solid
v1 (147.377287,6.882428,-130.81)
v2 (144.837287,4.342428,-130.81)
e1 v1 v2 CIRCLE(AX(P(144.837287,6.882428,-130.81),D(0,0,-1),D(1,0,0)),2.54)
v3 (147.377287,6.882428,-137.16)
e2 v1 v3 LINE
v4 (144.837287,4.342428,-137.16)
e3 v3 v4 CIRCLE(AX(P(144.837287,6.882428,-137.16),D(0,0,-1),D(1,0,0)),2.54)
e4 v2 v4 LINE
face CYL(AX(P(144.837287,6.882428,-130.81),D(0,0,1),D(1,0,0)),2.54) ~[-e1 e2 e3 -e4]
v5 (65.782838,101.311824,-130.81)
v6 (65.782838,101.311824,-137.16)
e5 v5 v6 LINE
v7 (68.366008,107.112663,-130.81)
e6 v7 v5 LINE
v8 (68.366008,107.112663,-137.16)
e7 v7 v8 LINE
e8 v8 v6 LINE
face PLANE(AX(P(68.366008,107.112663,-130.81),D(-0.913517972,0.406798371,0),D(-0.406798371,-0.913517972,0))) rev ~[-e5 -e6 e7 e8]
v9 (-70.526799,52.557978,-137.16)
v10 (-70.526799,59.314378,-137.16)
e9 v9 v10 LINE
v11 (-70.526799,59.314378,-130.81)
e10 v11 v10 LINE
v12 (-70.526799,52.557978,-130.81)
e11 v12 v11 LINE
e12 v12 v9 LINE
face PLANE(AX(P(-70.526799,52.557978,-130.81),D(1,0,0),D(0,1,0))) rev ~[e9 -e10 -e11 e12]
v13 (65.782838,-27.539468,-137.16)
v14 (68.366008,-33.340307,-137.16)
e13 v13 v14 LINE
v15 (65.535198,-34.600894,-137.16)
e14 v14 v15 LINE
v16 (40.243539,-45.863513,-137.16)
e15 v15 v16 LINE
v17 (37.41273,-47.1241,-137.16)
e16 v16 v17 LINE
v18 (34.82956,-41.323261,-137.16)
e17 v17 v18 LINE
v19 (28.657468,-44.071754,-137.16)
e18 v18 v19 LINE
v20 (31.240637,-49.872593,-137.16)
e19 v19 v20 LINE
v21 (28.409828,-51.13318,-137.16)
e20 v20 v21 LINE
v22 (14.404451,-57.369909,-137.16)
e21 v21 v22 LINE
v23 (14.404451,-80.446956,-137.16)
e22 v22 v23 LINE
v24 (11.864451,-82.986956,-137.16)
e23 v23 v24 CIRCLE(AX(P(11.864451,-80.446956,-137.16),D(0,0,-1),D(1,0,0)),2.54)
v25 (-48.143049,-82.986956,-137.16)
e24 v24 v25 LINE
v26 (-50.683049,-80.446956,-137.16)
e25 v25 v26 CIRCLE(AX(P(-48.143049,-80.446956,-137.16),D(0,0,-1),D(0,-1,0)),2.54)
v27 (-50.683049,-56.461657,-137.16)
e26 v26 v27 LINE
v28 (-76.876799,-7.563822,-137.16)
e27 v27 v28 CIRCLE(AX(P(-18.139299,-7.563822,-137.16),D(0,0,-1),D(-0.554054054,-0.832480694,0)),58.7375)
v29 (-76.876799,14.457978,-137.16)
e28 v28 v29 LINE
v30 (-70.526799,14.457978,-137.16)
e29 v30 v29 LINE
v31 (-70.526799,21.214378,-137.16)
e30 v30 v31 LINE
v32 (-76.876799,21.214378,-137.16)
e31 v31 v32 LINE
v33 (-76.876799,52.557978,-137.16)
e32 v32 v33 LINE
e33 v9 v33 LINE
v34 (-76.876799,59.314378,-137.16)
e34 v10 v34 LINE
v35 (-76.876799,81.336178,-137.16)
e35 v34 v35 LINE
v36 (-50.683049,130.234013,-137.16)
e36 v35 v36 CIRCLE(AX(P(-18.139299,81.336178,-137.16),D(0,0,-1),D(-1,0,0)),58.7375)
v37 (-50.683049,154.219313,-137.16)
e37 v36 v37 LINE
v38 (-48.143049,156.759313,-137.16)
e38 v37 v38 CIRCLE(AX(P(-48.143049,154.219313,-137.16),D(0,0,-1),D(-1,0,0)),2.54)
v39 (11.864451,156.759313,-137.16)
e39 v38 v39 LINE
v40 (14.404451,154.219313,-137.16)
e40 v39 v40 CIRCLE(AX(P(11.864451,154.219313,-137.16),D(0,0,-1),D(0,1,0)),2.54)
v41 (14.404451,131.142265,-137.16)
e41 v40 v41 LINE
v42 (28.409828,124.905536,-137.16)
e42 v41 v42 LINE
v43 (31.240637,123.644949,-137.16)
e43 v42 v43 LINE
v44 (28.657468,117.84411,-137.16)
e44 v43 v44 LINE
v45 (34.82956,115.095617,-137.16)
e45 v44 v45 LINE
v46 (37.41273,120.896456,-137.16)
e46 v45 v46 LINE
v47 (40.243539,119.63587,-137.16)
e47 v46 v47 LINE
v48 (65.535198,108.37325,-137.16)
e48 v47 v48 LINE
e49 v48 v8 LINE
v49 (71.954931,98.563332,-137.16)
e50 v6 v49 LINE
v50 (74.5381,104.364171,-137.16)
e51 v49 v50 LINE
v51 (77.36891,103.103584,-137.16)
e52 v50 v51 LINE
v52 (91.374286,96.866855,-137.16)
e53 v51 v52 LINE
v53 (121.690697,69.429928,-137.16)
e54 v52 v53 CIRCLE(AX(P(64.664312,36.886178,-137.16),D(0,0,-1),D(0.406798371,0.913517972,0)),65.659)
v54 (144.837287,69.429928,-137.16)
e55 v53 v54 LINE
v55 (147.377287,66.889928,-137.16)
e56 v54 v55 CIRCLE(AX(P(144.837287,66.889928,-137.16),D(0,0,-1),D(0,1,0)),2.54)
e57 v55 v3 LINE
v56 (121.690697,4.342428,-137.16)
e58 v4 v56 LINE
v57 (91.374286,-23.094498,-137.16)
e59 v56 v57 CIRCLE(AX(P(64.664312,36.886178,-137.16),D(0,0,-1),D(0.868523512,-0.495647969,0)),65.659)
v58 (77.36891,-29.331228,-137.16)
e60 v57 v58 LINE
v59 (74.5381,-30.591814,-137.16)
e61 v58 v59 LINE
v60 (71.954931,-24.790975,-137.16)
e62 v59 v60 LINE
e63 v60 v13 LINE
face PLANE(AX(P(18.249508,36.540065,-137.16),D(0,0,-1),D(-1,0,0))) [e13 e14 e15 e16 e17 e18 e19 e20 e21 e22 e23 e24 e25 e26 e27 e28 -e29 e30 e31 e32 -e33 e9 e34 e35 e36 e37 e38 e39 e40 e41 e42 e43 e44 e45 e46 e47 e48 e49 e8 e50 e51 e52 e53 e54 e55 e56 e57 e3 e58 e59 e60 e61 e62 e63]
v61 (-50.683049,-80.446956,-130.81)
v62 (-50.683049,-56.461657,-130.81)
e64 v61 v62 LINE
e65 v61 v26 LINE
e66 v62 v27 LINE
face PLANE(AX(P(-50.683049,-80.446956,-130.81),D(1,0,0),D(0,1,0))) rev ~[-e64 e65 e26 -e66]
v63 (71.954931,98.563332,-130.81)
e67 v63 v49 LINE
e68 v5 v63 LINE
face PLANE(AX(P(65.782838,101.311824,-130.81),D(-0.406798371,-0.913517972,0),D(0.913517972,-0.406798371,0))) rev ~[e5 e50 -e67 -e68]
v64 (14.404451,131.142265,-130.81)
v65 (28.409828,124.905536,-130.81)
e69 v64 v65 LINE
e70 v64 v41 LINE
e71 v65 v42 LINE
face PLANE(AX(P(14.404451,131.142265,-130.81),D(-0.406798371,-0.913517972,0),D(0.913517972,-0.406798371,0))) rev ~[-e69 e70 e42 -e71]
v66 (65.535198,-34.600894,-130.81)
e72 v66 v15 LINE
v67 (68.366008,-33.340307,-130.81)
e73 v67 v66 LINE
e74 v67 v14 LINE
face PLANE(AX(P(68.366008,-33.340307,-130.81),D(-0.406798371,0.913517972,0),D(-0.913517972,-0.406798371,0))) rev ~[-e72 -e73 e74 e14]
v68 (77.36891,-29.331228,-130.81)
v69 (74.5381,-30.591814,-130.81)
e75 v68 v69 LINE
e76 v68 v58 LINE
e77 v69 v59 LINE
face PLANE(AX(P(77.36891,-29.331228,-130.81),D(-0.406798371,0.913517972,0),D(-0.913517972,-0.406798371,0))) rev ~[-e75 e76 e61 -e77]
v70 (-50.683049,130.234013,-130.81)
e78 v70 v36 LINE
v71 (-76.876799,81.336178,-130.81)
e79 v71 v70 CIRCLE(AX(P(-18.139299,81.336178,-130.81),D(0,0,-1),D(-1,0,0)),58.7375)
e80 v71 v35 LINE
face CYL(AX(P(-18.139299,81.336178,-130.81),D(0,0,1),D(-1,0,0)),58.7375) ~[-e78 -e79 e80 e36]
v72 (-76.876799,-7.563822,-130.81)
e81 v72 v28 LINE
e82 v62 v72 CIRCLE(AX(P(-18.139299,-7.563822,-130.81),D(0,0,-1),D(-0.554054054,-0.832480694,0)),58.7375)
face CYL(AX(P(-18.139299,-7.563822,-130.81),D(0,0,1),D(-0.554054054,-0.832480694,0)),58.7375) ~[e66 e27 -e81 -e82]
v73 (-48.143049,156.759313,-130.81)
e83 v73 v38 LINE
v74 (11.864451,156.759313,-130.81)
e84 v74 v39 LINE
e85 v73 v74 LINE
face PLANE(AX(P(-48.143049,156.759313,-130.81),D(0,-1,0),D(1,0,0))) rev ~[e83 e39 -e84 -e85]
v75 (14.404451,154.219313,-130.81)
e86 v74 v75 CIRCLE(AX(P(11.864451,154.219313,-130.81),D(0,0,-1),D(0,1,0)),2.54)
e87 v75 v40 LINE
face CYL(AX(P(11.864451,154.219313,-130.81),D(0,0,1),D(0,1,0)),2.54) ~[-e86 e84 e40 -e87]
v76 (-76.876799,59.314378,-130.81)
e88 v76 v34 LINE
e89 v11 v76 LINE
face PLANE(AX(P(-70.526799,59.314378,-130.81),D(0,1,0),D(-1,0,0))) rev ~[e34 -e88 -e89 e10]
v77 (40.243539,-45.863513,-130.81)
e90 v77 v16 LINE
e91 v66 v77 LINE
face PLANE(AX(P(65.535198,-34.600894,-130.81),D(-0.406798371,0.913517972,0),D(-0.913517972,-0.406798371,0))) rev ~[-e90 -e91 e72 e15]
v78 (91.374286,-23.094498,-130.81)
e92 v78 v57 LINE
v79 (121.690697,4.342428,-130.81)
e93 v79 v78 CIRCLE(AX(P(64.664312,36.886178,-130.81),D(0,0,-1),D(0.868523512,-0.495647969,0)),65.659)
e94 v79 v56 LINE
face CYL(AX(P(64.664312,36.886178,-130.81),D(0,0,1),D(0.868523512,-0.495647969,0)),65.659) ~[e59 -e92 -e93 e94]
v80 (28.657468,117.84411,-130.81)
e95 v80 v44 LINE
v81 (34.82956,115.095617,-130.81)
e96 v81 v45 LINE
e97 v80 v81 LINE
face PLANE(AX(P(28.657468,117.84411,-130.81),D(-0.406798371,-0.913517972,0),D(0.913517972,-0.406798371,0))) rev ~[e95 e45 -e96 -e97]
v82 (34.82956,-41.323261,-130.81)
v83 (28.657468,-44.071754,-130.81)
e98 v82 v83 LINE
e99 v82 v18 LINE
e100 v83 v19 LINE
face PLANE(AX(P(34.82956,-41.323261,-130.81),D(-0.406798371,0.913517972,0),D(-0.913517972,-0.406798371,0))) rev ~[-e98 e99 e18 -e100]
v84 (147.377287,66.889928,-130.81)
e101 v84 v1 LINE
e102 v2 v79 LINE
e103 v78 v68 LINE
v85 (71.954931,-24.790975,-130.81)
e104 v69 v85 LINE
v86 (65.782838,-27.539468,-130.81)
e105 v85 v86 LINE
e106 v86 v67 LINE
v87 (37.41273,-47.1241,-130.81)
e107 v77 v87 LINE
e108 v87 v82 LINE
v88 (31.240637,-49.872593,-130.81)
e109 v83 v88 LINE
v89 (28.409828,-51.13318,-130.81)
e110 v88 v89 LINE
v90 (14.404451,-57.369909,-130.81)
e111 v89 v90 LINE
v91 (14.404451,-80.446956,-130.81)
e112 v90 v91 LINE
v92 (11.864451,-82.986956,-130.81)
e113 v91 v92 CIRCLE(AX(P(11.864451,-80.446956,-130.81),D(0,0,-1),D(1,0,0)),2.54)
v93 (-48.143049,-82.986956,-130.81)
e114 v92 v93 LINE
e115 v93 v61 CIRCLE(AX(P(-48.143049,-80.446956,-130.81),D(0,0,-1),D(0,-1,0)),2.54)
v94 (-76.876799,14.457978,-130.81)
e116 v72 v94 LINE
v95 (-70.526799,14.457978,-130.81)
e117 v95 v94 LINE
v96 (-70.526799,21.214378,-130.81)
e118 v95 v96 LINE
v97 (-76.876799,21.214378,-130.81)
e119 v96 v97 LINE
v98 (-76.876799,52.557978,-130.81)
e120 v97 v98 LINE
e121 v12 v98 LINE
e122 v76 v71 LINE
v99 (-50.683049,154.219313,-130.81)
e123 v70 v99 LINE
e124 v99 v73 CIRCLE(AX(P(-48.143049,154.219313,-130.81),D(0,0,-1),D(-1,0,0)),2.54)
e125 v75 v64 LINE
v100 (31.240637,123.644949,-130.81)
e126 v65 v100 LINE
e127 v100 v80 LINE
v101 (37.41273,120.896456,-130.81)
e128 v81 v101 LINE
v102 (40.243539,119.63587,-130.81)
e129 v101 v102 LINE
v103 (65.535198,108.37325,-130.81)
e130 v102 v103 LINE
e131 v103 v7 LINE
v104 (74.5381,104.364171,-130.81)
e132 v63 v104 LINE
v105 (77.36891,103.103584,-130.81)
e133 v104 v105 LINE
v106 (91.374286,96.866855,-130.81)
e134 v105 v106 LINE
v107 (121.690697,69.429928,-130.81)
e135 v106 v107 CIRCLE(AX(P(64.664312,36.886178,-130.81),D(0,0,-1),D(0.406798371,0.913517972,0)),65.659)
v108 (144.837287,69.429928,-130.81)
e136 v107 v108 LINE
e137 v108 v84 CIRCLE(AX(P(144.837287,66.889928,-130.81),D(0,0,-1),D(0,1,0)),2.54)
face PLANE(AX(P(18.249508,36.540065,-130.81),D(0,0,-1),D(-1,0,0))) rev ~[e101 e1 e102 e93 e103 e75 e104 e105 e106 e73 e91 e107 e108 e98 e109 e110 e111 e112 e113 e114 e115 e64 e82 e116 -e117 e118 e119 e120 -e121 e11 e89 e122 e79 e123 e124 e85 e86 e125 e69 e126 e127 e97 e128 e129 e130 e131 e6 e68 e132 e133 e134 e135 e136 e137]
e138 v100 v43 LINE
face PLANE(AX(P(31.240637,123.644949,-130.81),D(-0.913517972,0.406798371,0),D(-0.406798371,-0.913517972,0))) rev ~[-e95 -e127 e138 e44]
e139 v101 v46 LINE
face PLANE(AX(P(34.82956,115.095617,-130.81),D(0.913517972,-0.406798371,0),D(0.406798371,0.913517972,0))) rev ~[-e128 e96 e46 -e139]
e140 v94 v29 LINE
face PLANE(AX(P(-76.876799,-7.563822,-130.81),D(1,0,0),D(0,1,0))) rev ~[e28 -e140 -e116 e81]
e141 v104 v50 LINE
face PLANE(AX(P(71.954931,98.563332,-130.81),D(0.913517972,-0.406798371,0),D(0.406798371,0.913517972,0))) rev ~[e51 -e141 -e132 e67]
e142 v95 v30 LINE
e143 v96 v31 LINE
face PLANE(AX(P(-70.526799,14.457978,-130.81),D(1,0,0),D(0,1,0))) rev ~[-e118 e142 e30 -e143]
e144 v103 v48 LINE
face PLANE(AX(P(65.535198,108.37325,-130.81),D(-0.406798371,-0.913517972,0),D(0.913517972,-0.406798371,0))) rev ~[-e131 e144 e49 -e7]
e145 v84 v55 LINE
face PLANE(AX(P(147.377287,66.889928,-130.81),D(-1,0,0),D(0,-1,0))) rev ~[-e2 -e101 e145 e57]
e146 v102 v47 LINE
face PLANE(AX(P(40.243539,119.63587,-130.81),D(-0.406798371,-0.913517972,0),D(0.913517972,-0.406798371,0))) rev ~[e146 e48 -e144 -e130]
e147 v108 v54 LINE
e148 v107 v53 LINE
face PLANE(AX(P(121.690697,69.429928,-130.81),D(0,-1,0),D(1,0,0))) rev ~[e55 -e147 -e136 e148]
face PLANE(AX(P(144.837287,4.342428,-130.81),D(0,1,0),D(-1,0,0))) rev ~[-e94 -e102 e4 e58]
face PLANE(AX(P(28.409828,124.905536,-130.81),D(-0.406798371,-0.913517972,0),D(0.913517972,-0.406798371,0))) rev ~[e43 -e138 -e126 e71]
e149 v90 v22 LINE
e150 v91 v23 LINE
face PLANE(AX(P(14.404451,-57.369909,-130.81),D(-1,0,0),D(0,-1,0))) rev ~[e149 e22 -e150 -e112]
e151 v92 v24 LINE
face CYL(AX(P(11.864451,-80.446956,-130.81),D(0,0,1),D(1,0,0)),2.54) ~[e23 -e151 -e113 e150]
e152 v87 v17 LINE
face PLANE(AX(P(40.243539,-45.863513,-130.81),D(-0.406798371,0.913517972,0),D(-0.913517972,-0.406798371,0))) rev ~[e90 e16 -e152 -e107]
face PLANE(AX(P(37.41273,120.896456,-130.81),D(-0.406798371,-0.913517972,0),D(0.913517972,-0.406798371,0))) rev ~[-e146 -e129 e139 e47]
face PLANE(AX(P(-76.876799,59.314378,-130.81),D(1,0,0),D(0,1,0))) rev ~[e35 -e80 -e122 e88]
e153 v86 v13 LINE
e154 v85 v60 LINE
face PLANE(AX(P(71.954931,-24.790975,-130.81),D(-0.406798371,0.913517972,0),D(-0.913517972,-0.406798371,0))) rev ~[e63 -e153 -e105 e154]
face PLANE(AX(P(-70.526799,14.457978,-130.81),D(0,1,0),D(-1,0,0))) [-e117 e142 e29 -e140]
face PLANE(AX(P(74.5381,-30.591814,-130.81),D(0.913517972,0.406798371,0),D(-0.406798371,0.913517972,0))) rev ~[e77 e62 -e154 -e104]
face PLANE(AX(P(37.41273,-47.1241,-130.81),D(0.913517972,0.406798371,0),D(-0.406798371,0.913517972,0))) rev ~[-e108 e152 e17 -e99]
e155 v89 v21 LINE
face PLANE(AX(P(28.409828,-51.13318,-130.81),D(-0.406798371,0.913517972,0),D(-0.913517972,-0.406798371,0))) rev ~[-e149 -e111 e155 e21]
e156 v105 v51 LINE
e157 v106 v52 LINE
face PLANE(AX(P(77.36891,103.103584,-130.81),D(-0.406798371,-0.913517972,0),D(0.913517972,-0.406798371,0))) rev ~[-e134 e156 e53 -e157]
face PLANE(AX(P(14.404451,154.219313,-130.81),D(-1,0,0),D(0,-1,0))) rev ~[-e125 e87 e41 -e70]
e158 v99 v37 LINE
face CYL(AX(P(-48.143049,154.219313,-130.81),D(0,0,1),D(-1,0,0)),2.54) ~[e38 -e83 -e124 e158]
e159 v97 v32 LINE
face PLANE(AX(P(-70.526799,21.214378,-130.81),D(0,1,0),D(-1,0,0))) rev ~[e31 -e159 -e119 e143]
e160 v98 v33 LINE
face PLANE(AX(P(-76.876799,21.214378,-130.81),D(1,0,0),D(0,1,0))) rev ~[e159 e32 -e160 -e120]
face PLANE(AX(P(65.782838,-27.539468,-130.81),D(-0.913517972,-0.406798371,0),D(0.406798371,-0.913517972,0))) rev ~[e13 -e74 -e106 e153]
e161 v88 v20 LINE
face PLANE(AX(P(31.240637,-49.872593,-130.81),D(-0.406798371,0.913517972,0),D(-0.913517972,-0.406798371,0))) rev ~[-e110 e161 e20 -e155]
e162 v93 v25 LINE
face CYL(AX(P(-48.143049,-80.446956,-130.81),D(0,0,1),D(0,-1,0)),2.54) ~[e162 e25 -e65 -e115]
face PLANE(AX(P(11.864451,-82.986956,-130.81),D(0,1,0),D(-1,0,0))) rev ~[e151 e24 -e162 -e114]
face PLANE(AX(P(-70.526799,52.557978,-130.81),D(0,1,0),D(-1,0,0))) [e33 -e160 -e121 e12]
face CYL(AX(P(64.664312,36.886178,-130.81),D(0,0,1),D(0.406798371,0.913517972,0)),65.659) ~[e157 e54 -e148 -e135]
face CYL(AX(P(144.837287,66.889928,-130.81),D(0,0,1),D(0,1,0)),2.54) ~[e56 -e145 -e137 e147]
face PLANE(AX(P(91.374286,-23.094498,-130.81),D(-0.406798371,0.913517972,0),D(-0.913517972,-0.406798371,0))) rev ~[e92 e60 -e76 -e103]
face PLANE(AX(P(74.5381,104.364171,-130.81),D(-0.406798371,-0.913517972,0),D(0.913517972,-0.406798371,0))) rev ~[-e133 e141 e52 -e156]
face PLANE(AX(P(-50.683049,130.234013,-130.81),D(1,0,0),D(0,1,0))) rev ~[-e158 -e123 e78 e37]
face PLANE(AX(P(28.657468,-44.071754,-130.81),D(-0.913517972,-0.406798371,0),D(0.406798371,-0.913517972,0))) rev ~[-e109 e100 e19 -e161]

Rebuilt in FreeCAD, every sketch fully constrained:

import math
import FreeCAD as App
import Part
import Sketcher
Q = App.Units.Quantity

doc = App.newDocument("Part")
body = doc.addObject("PartDesign::Body", "Body")

# Sketch on XY plane
sketch1 = body.newObject("Sketcher::SketchObject", "Sketch")
sketch1.AttachmentSupport = (doc.getObject("XY_Plane"), [""])
sketch1.MapMode = "FlatFace"
sketch1.AttachmentOffset = App.Placement(App.Vector(0, 0, -5.15 * 25.4), App.Rotation())
sketch1.addGeometry(Part.LineSegment(App.Vector(28.7, 117.8, 0), App.Vector(34.8, 115.1, 0)), False)
sketch1.addGeometry(Part.LineSegment(App.Vector(34.8, 115.1, 0), App.Vector(37.4, 120.9, 0)), False)
sketch1.addGeometry(Part.LineSegment(App.Vector(37.4, 120.9, 0), App.Vector(40.2, 119.6, 0)), False)
sketch1.addGeometry(Part.LineSegment(App.Vector(40.2, 119.6, 0), App.Vector(65.5, 108.4, 0)), False)
sketch1.addGeometry(Part.LineSegment(App.Vector(65.5, 108.4, 0), App.Vector(68.4, 107.1, 0)), False)
sketch1.addGeometry(Part.LineSegment(App.Vector(68.4, 107.1, 0), App.Vector(65.8, 101.3, 0)), False)
sketch1.addGeometry(Part.LineSegment(App.Vector(65.8, 101.3, 0), App.Vector(72, 98.6, 0)), False)
sketch1.addGeometry(Part.LineSegment(App.Vector(72, 98.6, 0), App.Vector(74.5, 104.4, 0)), False)
sketch1.addGeometry(Part.LineSegment(App.Vector(74.5, 104.4, 0), App.Vector(77.4, 103.1, 0)), False)
sketch1.addGeometry(Part.LineSegment(App.Vector(77.4, 103.1, 0), App.Vector(91.4, 96.9, 0)), False)
sketch1.addGeometry(Part.ArcOfCircle(Part.Circle(App.Vector(64.7, 36.9, 0), App.Vector(0, 0, 1), 65.7), math.radians(30), math.radians(66)), False)
sketch1.addGeometry(Part.LineSegment(App.Vector(121.7, 69.4, 0), App.Vector(144.8, 69.4, 0)), False)
sketch1.addGeometry(Part.ArcOfCircle(Part.Circle(App.Vector(144.8, 66.9, 0), App.Vector(0, 0, 1), 2.5), math.radians(0), math.radians(90)), False)
sketch1.addGeometry(Part.LineSegment(App.Vector(147.4, 66.9, 0), App.Vector(147.4, 6.9, 0)), False)
sketch1.addGeometry(Part.ArcOfCircle(Part.Circle(App.Vector(144.8, 6.9, 0), App.Vector(0, 0, 1), 2.5), math.radians(-90), math.radians(0)), False)
sketch1.addGeometry(Part.LineSegment(App.Vector(144.8, 4.3, 0), App.Vector(121.7, 4.3, 0)), False)
sketch1.addGeometry(Part.ArcOfCircle(Part.Circle(App.Vector(64.7, 36.9, 0), App.Vector(0, 0, 1), 65.7), math.radians(-66), math.radians(-30)), False)
sketch1.addGeometry(Part.LineSegment(App.Vector(91.4, -23.1, 0), App.Vector(77.4, -29.3, 0)), False)
sketch1.addGeometry(Part.LineSegment(App.Vector(77.4, -29.3, 0), App.Vector(74.5, -30.6, 0)), False)
sketch1.addGeometry(Part.LineSegment(App.Vector(74.5, -30.6, 0), App.Vector(72, -24.8, 0)), False)
sketch1.addGeometry(Part.LineSegment(App.Vector(72, -24.8, 0), App.Vector(65.8, -27.5, 0)), False)
sketch1.addGeometry(Part.LineSegment(App.Vector(65.8, -27.5, 0), App.Vector(68.4, -33.3, 0)), False)
sketch1.addGeometry(Part.LineSegment(App.Vector(68.4, -33.3, 0), App.Vector(65.5, -34.6, 0)), False)
sketch1.addGeometry(Part.LineSegment(App.Vector(65.5, -34.6, 0), App.Vector(40.2, -45.9, 0)), False)
sketch1.addGeometry(Part.LineSegment(App.Vector(40.2, -45.9, 0), App.Vector(37.4, -47.1, 0)), False)
sketch1.addGeometry(Part.LineSegment(App.Vector(37.4, -47.1, 0), App.Vector(34.8, -41.3, 0)), False)
sketch1.addGeometry(Part.LineSegment(App.Vector(34.8, -41.3, 0), App.Vector(28.7, -44.1, 0)), False)
sketch1.addGeometry(Part.LineSegment(App.Vector(28.7, -44.1, 0), App.Vector(31.2, -49.9, 0)), False)
sketch1.addGeometry(Part.LineSegment(App.Vector(31.2, -49.9, 0), App.Vector(28.4, -51.1, 0)), False)
sketch1.addGeometry(Part.LineSegment(App.Vector(28.4, -51.1, 0), App.Vector(14.4, -57.4, 0)), False)
sketch1.addGeometry(Part.LineSegment(App.Vector(14.4, -57.4, 0), App.Vector(14.4, -80.4, 0)), False)
sketch1.addGeometry(Part.ArcOfCircle(Part.Circle(App.Vector(11.9, -80.4, 0), App.Vector(0, 0, 1), 2.5), math.radians(-90), math.radians(0)), False)
sketch1.addGeometry(Part.LineSegment(App.Vector(11.9, -83, 0), App.Vector(-48.1, -83, 0)), False)
sketch1.addGeometry(Part.ArcOfCircle(Part.Circle(App.Vector(-48.1, -80.4, 0), App.Vector(0, 0, 1), 2.5), math.radians(-180), math.radians(-90)), False)
sketch1.addGeometry(Part.LineSegment(App.Vector(-50.7, -80.4, 0), App.Vector(-50.7, -56.5, 0)), False)
sketch1.addGeometry(Part.ArcOfCircle(Part.Circle(App.Vector(-18.1, -7.6, 0), App.Vector(0, 0, 1), 58.7), math.radians(180), math.radians(236)), False)
sketch1.addGeometry(Part.LineSegment(App.Vector(-76.9, -7.6, 0), App.Vector(-76.9, 14.5, 0)), False)
sketch1.addGeometry(Part.LineSegment(App.Vector(-76.9, 14.5, 0), App.Vector(-70.5, 14.5, 0)), False)
sketch1.addGeometry(Part.LineSegment(App.Vector(-70.5, 14.5, 0), App.Vector(-70.5, 21.2, 0)), False)
sketch1.addGeometry(Part.LineSegment(App.Vector(-70.5, 21.2, 0), App.Vector(-76.9, 21.2, 0)), False)
sketch1.addGeometry(Part.LineSegment(App.Vector(-76.9, 21.2, 0), App.Vector(-76.9, 52.6, 0)), False)
sketch1.addGeometry(Part.LineSegment(App.Vector(-76.9, 52.6, 0), App.Vector(-70.5, 52.6, 0)), False)
sketch1.addGeometry(Part.LineSegment(App.Vector(-70.5, 52.6, 0), App.Vector(-70.5, 59.3, 0)), False)
sketch1.addGeometry(Part.LineSegment(App.Vector(-70.5, 59.3, 0), App.Vector(-76.9, 59.3, 0)), False)
sketch1.addGeometry(Part.LineSegment(App.Vector(-76.9, 59.3, 0), App.Vector(-76.9, 81.3, 0)), False)
sketch1.addGeometry(Part.ArcOfCircle(Part.Circle(App.Vector(-18.1, 81.3, 0), App.Vector(0, 0, 1), 58.7), math.radians(124), math.radians(180)), False)
sketch1.addGeometry(Part.LineSegment(App.Vector(-50.7, 130.2, 0), App.Vector(-50.7, 154.2, 0)), False)
sketch1.addGeometry(Part.ArcOfCircle(Part.Circle(App.Vector(-48.1, 154.2, 0), App.Vector(0, 0, 1), 2.5), math.radians(90), math.radians(180)), False)
sketch1.addGeometry(Part.LineSegment(App.Vector(-48.1, 156.8, 0), App.Vector(11.9, 156.8, 0)), False)
sketch1.addGeometry(Part.ArcOfCircle(Part.Circle(App.Vector(11.9, 154.2, 0), App.Vector(0, 0, 1), 2.5), math.radians(0), math.radians(90)), False)
sketch1.addGeometry(Part.LineSegment(App.Vector(14.4, 154.2, 0), App.Vector(14.4, 131.1, 0)), False)
sketch1.addGeometry(Part.LineSegment(App.Vector(14.4, 131.1, 0), App.Vector(28.4, 124.9, 0)), False)
sketch1.addGeometry(Part.LineSegment(App.Vector(28.4, 124.9, 0), App.Vector(31.2, 123.6, 0)), False)
sketch1.addGeometry(Part.LineSegment(App.Vector(31.2, 123.6, 0), App.Vector(28.7, 117.8, 0)), False)
sketch1.addConstraint(Sketcher.Constraint("Coincident", 0, 2, 1, 1))
sketch1.addConstraint(Sketcher.Constraint("Coincident", 1, 2, 2, 1))
sketch1.addConstraint(Sketcher.Constraint("Coincident", 2, 2, 3, 1))
sketch1.addConstraint(Sketcher.Constraint("Coincident", 3, 2, 4, 1))
sketch1.addConstraint(Sketcher.Constraint("Coincident", 4, 2, 5, 1))
sketch1.addConstraint(Sketcher.Constraint("Coincident", 5, 2, 6, 1))
sketch1.addConstraint(Sketcher.Constraint("Coincident", 6, 2, 7, 1))
sketch1.addConstraint(Sketcher.Constraint("Coincident", 7, 2, 8, 1))
sketch1.addConstraint(Sketcher.Constraint("Coincident", 8, 2, 9, 1))
sketch1.addConstraint(Sketcher.Constraint("Tangent", 9, 2, 10, 2))
sketch1.addConstraint(Sketcher.Constraint("Coincident", 10, 1, 11, 1))
sketch1.addConstraint(Sketcher.Constraint("Tangent", 11, 2, 12, 2))
sketch1.addConstraint(Sketcher.Constraint("Tangent", 12, 1, 13, 1))
sketch1.addConstraint(Sketcher.Constraint("Tangent", 13, 2, 14, 2))
sketch1.addConstraint(Sketcher.Constraint("Tangent", 14, 1, 15, 1))
sketch1.addConstraint(Sketcher.Constraint("Coincident", 15, 2, 16, 2))
sketch1.addConstraint(Sketcher.Constraint("Tangent", 16, 1, 17, 1))
sketch1.addConstraint(Sketcher.Constraint("Coincident", 17, 2, 18, 1))
sketch1.addConstraint(Sketcher.Constraint("Coincident", 18, 2, 19, 1))
sketch1.addConstraint(Sketcher.Constraint("Coincident", 19, 2, 20, 1))
sketch1.addConstraint(Sketcher.Constraint("Coincident", 20, 2, 21, 1))
sketch1.addConstraint(Sketcher.Constraint("Coincident", 21, 2, 22, 1))
sketch1.addConstraint(Sketcher.Constraint("Coincident", 22, 2, 23, 1))
sketch1.addConstraint(Sketcher.Constraint("Coincident", 23, 2, 24, 1))
sketch1.addConstraint(Sketcher.Constraint("Coincident", 24, 2, 25, 1))
sketch1.addConstraint(Sketcher.Constraint("Coincident", 25, 2, 26, 1))
sketch1.addConstraint(Sketcher.Constraint("Coincident", 26, 2, 27, 1))
sketch1.addConstraint(Sketcher.Constraint("Coincident", 27, 2, 28, 1))
sketch1.addConstraint(Sketcher.Constraint("Coincident", 28, 2, 29, 1))
sketch1.addConstraint(Sketcher.Constraint("Coincident", 29, 2, 30, 1))
sketch1.addConstraint(Sketcher.Constraint("Tangent", 30, 2, 31, 2))
sketch1.addConstraint(Sketcher.Constraint("Tangent", 31, 1, 32, 1))
sketch1.addConstraint(Sketcher.Constraint("Tangent", 32, 2, 33, 2))
sketch1.addConstraint(Sketcher.Constraint("Tangent", 33, 1, 34, 1))
sketch1.addConstraint(Sketcher.Constraint("Coincident", 34, 2, 35, 2))
sketch1.addConstraint(Sketcher.Constraint("Tangent", 35, 1, 36, 1))
sketch1.addConstraint(Sketcher.Constraint("Coincident", 36, 2, 37, 1))
sketch1.addConstraint(Sketcher.Constraint("Coincident", 37, 2, 38, 1))
sketch1.addConstraint(Sketcher.Constraint("Coincident", 38, 2, 39, 1))
sketch1.addConstraint(Sketcher.Constraint("Coincident", 39, 2, 40, 1))
sketch1.addConstraint(Sketcher.Constraint("Coincident", 40, 2, 41, 1))
sketch1.addConstraint(Sketcher.Constraint("Coincident", 41, 2, 42, 1))
sketch1.addConstraint(Sketcher.Constraint("Coincident", 42, 2, 43, 1))
sketch1.addConstraint(Sketcher.Constraint("Coincident", 43, 2, 44, 1))
sketch1.addConstraint(Sketcher.Constraint("Tangent", 44, 2, 45, 2))
sketch1.addConstraint(Sketcher.Constraint("Coincident", 45, 1, 46, 1))
sketch1.addConstraint(Sketcher.Constraint("Tangent", 46, 2, 47, 2))
sketch1.addConstraint(Sketcher.Constraint("Tangent", 47, 1, 48, 1))
sketch1.addConstraint(Sketcher.Constraint("Tangent", 48, 2, 49, 2))
sketch1.addConstraint(Sketcher.Constraint("Tangent", 49, 1, 50, 1))
sketch1.addConstraint(Sketcher.Constraint("Coincident", 50, 2, 51, 1))
sketch1.addConstraint(Sketcher.Constraint("Coincident", 51, 2, 52, 1))
sketch1.addConstraint(Sketcher.Constraint("Coincident", 52, 2, 53, 1))
sketch1.addConstraint(Sketcher.Constraint("Coincident", 53, 2, 0, 1))
sketch1.addConstraint(Sketcher.Constraint("Horizontal", 11))
sketch1.addConstraint(Sketcher.Constraint("Vertical", 13))
sketch1.addConstraint(Sketcher.Constraint("Horizontal", 15))
sketch1.addConstraint(Sketcher.Constraint("Vertical", 30))
sketch1.addConstraint(Sketcher.Constraint("Horizontal", 32))
sketch1.addConstraint(Sketcher.Constraint("Vertical", 34))
sketch1.addConstraint(Sketcher.Constraint("Vertical", 36))
sketch1.addConstraint(Sketcher.Constraint("Horizontal", 37))
sketch1.addConstraint(Sketcher.Constraint("Vertical", 38))
sketch1.addConstraint(Sketcher.Constraint("Horizontal", 39))
sketch1.addConstraint(Sketcher.Constraint("Vertical", 40))
sketch1.addConstraint(Sketcher.Constraint("Horizontal", 41))
sketch1.addConstraint(Sketcher.Constraint("Vertical", 42))
sketch1.addConstraint(Sketcher.Constraint("Horizontal", 43))
sketch1.addConstraint(Sketcher.Constraint("Vertical", 44))
sketch1.addConstraint(Sketcher.Constraint("Vertical", 46))
sketch1.addConstraint(Sketcher.Constraint("Horizontal", 48))
sketch1.addConstraint(Sketcher.Constraint("Vertical", 50))
sketch1.addConstraint(Sketcher.Constraint("Coincident", 16, 3, 10, 3))
sketch1.addConstraint(Sketcher.Constraint("Equal", 12, 14))
sketch1.addConstraint(Sketcher.Constraint("Equal", 10, 16))
sketch1.addConstraint(Sketcher.Constraint("Equal", 14, 31))
sketch1.addConstraint(Sketcher.Constraint("Equal", 31, 33))
sketch1.addConstraint(Sketcher.Constraint("Equal", 35, 45))
sketch1.addConstraint(Sketcher.Constraint("Equal", 33, 47))
sketch1.addConstraint(Sketcher.Constraint("Equal", 47, 49))
sketch1.addConstraint(Sketcher.Constraint("Perpendicular", 0, 1))
sketch1.addConstraint(Sketcher.Constraint("Perpendicular", 1, 2))
sketch1.addConstraint(Sketcher.Constraint("Parallel", 2, 3))
sketch1.addConstraint(Sketcher.Constraint("Parallel", 3, 4))
sketch1.addConstraint(Sketcher.Constraint("Perpendicular", 4, 5))
sketch1.addConstraint(Sketcher.Constraint("Perpendicular", 5, 6))
sketch1.addConstraint(Sketcher.Constraint("Perpendicular", 6, 7))
sketch1.addConstraint(Sketcher.Constraint("Perpendicular", 7, 8))
sketch1.addConstraint(Sketcher.Constraint("Parallel", 8, 9))
sketch1.addConstraint(Sketcher.Constraint("Parallel", 17, 18))
sketch1.addConstraint(Sketcher.Constraint("Perpendicular", 18, 19))
sketch1.addConstraint(Sketcher.Constraint("Perpendicular", 19, 20))
sketch1.addConstraint(Sketcher.Constraint("Perpendicular", 20, 21))
sketch1.addConstraint(Sketcher.Constraint("Perpendicular", 21, 22))
sketch1.addConstraint(Sketcher.Constraint("Parallel", 22, 23))
sketch1.addConstraint(Sketcher.Constraint("Parallel", 23, 24))
sketch1.addConstraint(Sketcher.Constraint("Perpendicular", 24, 25))
sketch1.addConstraint(Sketcher.Constraint("Perpendicular", 25, 26))
sketch1.addConstraint(Sketcher.Constraint("Perpendicular", 26, 27))
sketch1.addConstraint(Sketcher.Constraint("Perpendicular", 27, 28))
sketch1.addConstraint(Sketcher.Constraint("Parallel", 28, 29))
sketch1.addConstraint(Sketcher.Constraint("Parallel", 9, 51))
sketch1.addConstraint(Sketcher.Constraint("Parallel", 51, 52))
sketch1.addConstraint(Sketcher.Constraint("Perpendicular", 52, 53))
sketch1.addConstraint(Sketcher.Constraint("Vertical", 35, 3, 45, 3))
sketch1.addConstraint(Sketcher.Constraint("Vertical", 33, 3, 47, 3))
sketch1.addConstraint(Sketcher.Constraint("Vertical", 31, 3, 49, 3))
sketch1.addConstraint(Sketcher.Constraint("Vertical", 10, 1, 15, 2))
sketch1.addConstraint(Sketcher.Constraint("Vertical", 9, 2, 16, 1))
sketch1.addConstraint(Sketcher.Constraint("Vertical", 8, 2, 17, 2))
sketch1.addConstraint(Sketcher.Constraint("Vertical", 7, 2, 18, 2))
sketch1.addConstraint(Sketcher.Constraint("Vertical", 6, 2, 19, 2))
sketch1.addConstraint(Sketcher.Constraint("Vertical", 5, 2, 20, 2))
sketch1.addConstraint(Sketcher.Constraint("Vertical", 4, 2, 21, 2))
sketch1.addConstraint(Sketcher.Constraint("Vertical", 3, 2, 22, 2))
sketch1.addConstraint(Sketcher.Constraint("Vertical", 2, 2, 23, 2))
sketch1.addConstraint(Sketcher.Constraint("Vertical", 1, 2, 24, 2))
sketch1.addConstraint(Sketcher.Constraint("Vertical", 0, 2, 25, 2))
sketch1.addConstraint(Sketcher.Constraint("Vertical", 36, 2, 39, 2))
sketch1.addConstraint(Sketcher.Constraint("Vertical", 38, 2, 41, 2))
sketch1.addConstraint(Sketcher.Constraint("Vertical", 28, 2, 51, 2))
sketch1.addConstraint(Sketcher.Constraint("Vertical", 27, 2, 52, 2))
sketch1.addConstraint(Sketcher.Constraint("Vertical", 26, 2, 53, 2))
sketch1.addConstraint(Sketcher.Constraint("Equal", 48, 13))
sketch1.addConstraint(Sketcher.Constraint("Equal", 38, 42))
sketch1.addConstraint(Sketcher.Constraint("Equal", 36, 44))
sketch1.addConstraint(Sketcher.Constraint("Equal", 34, 46))
sketch1.addConstraint(Sketcher.Constraint("Equal", 30, 50))
sketch1.addConstraint(Sketcher.Constraint("Equal", 2, 4))
sketch1.addConstraint(Sketcher.Constraint("Equal", 1, 5))
sketch1.addConstraint(Sketcher.Constraint("Equal", 0, 6))
sketch1.addConstraint(Sketcher.Constraint("Equal", 5, 7))
sketch1.addConstraint(Sketcher.Constraint("Equal", 4, 8))
sketch1.addConstraint(Sketcher.Constraint("Equal", 25, 27))
sketch1.addConstraint(Sketcher.Constraint("Equal", 24, 28))
sketch1.addConstraint(Sketcher.Constraint("Equal", 17, 29))
sketch1.addConstraint(Sketcher.Constraint("Radius", 12, Q("0.1 in")))
sketch1.addConstraint(Sketcher.Constraint("Radius", 10, Q("2.585 in")))
sketch1.addConstraint(Sketcher.Constraint("Radius", 35, Q("2.3125 in")))
sketch1.addConstraint(Sketcher.Constraint("DistanceX", 37, 1, 37, 2, Q("0.25 in")))
sketch1.addConstraint(Sketcher.Constraint("Distance", 1, Q("0.25 in")))
sketch1.addConstraint(Sketcher.Constraint("Distance", 3, Q("1.09 in")))
sketch1.addConstraint(Sketcher.Constraint("DistanceY", 36, 1, 36, 2, Q("0.867 in")))
sketch1.addConstraint(Sketcher.Constraint("DistanceY", 38, 1, 38, 2, Q("0.266 in")))
sketch1.addConstraint(Sketcher.Constraint("DistanceY", 40, 1, 40, 2, Q("1.234 in")))
sketch1.addConstraint(Sketcher.Constraint("Distance", 0, Q("0.266 in")))
sketch1.addConstraint(Sketcher.Constraint("Distance", 2, Q("0.122 in")))
sketch1.addConstraint(Sketcher.Constraint("DistanceX", 32, 2, 32, 1, Q("2.3625 in")))
sketch1.addConstraint(Sketcher.Constraint("DistanceY", 34, 1, 34, 2, Q("23.9853 mm")))
sketch1.addConstraint(Sketcher.Constraint("DistanceY", 25, 2, -1, 1, Q("1.6269 in")))
sketch1.addConstraint(Sketcher.Constraint("DistanceY", 34, 2, -1, 1, Q("2.2228999 in")))
sketch1.addConstraint(Sketcher.Constraint("DistanceX", 11, 1, 11, 2, Q("23.14659 mm")))
sketch1.addConstraint(Sketcher.Constraint("DistanceX", 35, 3, -1, 1, Q("18.139299 mm")))
sketch1.addConstraint(Sketcher.Constraint("DistanceX", -1, 1, 3, 2, Q("65.535198 mm")))
sketch1.addConstraint(Sketcher.Constraint("DistanceX", -1, 1, 7, 2, Q("74.5381 mm")))
pad1 = body.newObject("PartDesign::Pad", "Pad")
pad1.Profile = sketch1
pad1.Length = Q("0.25 in")
pad1.Reversed = True

doc.recompute()
